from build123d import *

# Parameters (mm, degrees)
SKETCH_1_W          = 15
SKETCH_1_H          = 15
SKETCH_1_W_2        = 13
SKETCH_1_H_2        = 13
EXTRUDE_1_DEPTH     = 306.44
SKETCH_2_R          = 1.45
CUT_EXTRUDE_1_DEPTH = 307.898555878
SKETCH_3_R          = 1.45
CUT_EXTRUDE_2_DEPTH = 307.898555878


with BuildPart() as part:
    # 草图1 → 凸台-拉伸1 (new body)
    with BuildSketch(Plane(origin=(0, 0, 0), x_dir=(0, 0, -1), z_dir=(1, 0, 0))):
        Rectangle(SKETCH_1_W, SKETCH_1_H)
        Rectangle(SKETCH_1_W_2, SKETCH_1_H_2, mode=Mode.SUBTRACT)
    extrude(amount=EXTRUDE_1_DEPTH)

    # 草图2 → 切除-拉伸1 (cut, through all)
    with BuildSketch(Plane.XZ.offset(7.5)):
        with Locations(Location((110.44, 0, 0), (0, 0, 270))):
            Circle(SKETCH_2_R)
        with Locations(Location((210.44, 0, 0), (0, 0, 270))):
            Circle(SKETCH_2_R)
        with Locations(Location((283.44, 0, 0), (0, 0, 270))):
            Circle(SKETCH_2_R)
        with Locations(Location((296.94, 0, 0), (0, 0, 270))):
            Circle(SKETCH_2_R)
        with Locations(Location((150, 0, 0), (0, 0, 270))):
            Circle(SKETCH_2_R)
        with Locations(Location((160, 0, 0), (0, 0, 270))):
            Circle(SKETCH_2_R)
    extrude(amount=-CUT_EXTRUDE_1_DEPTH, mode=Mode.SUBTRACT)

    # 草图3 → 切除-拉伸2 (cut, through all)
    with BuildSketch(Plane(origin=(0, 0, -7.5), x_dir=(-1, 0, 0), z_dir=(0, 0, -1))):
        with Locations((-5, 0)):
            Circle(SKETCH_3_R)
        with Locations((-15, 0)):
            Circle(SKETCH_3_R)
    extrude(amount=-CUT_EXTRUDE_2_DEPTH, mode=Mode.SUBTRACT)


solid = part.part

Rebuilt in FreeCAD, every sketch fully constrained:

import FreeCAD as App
import Part
import Sketcher
from FreeCAD import Vector
Q = App.Units.Quantity


def add_polygon(sketch, points):
    """Adds a closed chain of lines whose ends are joined by coincident constraints."""
    first, n = sketch.GeometryCount, len(points)
    for a, b in zip(points, points[1:] + points[:1]):
        sketch.addGeometry(Part.LineSegment(App.Vector(*a, 0), App.Vector(*b, 0)), False)
    for i in range(n):
        sketch.addConstraint(Sketcher.Constraint("Coincident", first + i, 2, first + (i + 1) % n, 1))

doc = App.newDocument("Part")
body = doc.addObject("PartDesign::Body", "Body")

# Sketch on YZ plane
sketch1 = body.newObject("Sketcher::SketchObject", "Sketch")
sketch1.AttachmentSupport = (doc.getObject("YZ_Plane"), [""])
sketch1.MapMode = "FlatFace"
add_polygon(sketch1, [(7.5, 7.5), (-7.5, 7.5), (-7.5, -7.5), (7.5, -7.5)])  # lines 0-3
add_polygon(sketch1, [(-6.5, -6.5), (-6.5, 6.5), (6.5, 6.5), (6.5, -6.5)])  # lines 4-7
sketch1.addConstraint([
    Sketcher.Constraint("Horizontal", 0),
    Sketcher.Constraint("Vertical", 1),
    Sketcher.Constraint("Horizontal", 2),
    Sketcher.Constraint("Vertical", 3),
    Sketcher.Constraint("Vertical", 4),
    Sketcher.Constraint("Horizontal", 5),
    Sketcher.Constraint("Vertical", 6),
    Sketcher.Constraint("Horizontal", 7),
    Sketcher.Constraint("Symmetric", 0, 2, 2, 2, -1, 1),
    Sketcher.Constraint("Symmetric", 4, 2, 6, 2, -1, 1),
    Sketcher.Constraint("Equal", 2, 1),
    Sketcher.Constraint("Equal", 7, 4),
    Sketcher.Constraint("DistanceX", 0, 2, 0, 1, Q("15 mm")),
    Sketcher.Constraint("DistanceX", 5, 1, 5, 2, Q("13 mm")),
])
pad1 = body.newObject("PartDesign::Pad", "Pad")
pad1.Profile = sketch1
pad1.Length = 306.44

# Sketch on XZ plane
sketch2 = body.newObject("Sketcher::SketchObject", "Sketch001")
sketch2.AttachmentSupport = (doc.getObject("XZ_Plane"), [""])
sketch2.MapMode = "FlatFace"
sketch2.AttachmentOffset = App.Placement(Vector(0, 0, 7.5), App.Rotation())
sketch2.addGeometry([
    Part.Circle(Vector(110.44, 0, 0), Vector(0, 0, 1), 1.45),  # 0
    Part.Circle(Vector(210.44, 0, 0), Vector(0, 0, 1), 1.45),  # 1
    Part.Circle(Vector(283.44, 0, 0), Vector(0, 0, 1), 1.45),  # 2
    Part.Circle(Vector(296.94, 0, 0), Vector(0, 0, 1), 1.45),  # 3
    Part.Circle(Vector(150, 0, 0), Vector(0, 0, 1), 1.45),  # 4
    Part.Circle(Vector(160, 0, 0), Vector(0, 0, 1), 1.45),  # 5
], False)
sketch2.addConstraint([
    Sketcher.Constraint("Equal", 0, 1),
    Sketcher.Constraint("Equal", 1, 2),
    Sketcher.Constraint("Equal", 2, 3),
    Sketcher.Constraint("Equal", 3, 4),
    Sketcher.Constraint("Equal", 4, 5),
    Sketcher.Constraint("PointOnObject", 0, 3, -1),
    Sketcher.Constraint("PointOnObject", 1, 3, -1),
    Sketcher.Constraint("PointOnObject", 2, 3, -1),
    Sketcher.Constraint("PointOnObject", 3, 3, -1),
    Sketcher.Constraint("PointOnObject", 4, 3, -1),
    Sketcher.Constraint("PointOnObject", 5, 3, -1),
    Sketcher.Constraint("Diameter", 0, Q("2.9 mm")),
    Sketcher.Constraint("DistanceX", -1, 1, 4, 3, Q("150 mm")),
    Sketcher.Constraint("DistanceX", -1, 1, 5, 3, Q("160 mm")),
    Sketcher.Constraint("DistanceX", 0, 3, 1, 3, Q("100 mm")),
    Sketcher.Constraint("DistanceX", 1, 3, 2, 3, Q("73 mm")),
    Sketcher.Constraint("DistanceX", 2, 3, 3, 3, Q("13.5 mm")),
    Sketcher.Constraint("DistanceX", -1, 1, 0, 3, Q("110.44 mm")),
])
pocket1 = body.newObject("PartDesign::Pocket", "Pocket")
pocket1.Profile = sketch2
pocket1.Type = "ThroughAll"

# Sketch on XY plane
sketch3 = body.newObject("Sketcher::SketchObject", "Sketch002")
sketch3.AttachmentSupport = (doc.getObject("XY_Plane"), [""])
sketch3.MapMode = "FlatFace"
sketch3.AttachmentOffset = App.Placement(Vector(0, 0, -7.5), App.Rotation())
sketch3.addGeometry([
    Part.Circle(Vector(5, 0, 0), Vector(0, 0, 1), 1.45),
    Part.Circle(Vector(15, 0, 0), Vector(0, 0, 1), 1.45),
], False)
sketch3.addConstraint([
    Sketcher.Constraint("Equal", 0, 1),
    Sketcher.Constraint("PointOnObject", 0, 3, -1),
    Sketcher.Constraint("PointOnObject", 1, 3, -1),
    Sketcher.Constraint("Diameter", 0, Q("2.9 mm")),
    Sketcher.Constraint("DistanceX", -1, 1, 0, 3, Q("5 mm")),
    Sketcher.Constraint("DistanceX", -1, 1, 1, 3, Q("15 mm")),
])
pocket2 = body.newObject("PartDesign::Pocket", "Pocket001")
pocket2.Profile = sketch3
pocket2.Type = "ThroughAll"
pocket2.Reversed = True

doc.recompute()
